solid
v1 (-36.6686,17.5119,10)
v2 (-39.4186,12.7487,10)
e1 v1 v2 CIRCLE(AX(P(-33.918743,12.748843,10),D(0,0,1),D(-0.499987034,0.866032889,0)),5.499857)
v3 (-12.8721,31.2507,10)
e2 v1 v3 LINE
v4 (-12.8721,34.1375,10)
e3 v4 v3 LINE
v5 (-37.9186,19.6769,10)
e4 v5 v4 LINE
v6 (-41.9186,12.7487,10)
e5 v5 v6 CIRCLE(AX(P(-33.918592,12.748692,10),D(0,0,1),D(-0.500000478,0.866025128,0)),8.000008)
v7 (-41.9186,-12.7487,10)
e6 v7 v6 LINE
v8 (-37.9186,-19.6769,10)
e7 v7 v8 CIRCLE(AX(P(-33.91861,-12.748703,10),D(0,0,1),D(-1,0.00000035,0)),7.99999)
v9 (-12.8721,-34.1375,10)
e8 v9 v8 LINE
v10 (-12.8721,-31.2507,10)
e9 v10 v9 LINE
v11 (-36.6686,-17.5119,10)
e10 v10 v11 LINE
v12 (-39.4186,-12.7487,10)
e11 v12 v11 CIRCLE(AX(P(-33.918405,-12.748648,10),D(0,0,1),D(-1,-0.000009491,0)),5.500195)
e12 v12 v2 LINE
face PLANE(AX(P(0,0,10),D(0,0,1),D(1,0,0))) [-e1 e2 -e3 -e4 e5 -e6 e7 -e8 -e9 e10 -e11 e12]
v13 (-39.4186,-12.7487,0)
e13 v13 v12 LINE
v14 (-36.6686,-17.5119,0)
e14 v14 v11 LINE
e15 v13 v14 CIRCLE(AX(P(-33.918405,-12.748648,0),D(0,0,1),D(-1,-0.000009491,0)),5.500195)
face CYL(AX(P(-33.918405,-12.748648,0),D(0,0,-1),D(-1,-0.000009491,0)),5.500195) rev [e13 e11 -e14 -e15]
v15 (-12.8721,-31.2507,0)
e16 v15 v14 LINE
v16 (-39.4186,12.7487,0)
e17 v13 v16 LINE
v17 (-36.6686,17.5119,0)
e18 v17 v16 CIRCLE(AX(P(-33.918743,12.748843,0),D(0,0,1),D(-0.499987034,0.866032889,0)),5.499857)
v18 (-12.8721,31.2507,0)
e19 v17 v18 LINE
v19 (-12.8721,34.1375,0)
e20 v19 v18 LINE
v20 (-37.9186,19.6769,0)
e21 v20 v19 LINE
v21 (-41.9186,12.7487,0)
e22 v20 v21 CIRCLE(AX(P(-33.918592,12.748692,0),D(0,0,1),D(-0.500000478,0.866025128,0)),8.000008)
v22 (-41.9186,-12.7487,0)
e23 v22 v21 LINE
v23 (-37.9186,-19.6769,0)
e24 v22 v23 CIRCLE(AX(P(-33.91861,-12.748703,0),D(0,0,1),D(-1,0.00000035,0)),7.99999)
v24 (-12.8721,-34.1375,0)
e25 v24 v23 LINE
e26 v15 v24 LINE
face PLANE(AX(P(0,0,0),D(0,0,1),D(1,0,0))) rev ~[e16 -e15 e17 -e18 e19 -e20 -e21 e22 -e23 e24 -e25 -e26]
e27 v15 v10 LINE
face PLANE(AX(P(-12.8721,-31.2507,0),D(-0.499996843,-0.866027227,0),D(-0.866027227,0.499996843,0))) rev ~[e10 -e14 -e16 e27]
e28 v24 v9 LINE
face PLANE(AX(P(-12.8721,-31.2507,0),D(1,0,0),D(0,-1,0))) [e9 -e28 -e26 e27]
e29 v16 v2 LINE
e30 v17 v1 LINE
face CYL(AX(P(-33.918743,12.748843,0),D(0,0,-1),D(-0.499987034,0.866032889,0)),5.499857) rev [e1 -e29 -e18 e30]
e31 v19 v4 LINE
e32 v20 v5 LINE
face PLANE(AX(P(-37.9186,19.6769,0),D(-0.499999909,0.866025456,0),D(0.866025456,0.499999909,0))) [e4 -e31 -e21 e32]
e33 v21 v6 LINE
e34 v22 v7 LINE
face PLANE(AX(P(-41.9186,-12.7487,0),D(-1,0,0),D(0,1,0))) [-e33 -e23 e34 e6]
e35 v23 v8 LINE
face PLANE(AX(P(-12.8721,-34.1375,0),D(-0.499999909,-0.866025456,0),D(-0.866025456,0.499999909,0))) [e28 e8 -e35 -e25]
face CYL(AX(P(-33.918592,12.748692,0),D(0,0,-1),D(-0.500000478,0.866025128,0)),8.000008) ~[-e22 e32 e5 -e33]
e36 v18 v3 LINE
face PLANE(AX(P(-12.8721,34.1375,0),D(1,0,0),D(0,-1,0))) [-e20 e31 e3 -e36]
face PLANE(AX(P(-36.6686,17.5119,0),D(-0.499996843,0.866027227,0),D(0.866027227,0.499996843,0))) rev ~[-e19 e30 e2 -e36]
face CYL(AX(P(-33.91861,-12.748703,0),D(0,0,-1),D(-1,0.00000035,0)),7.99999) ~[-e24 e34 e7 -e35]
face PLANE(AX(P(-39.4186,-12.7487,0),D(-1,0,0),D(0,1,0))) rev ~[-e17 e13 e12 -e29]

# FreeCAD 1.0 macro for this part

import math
import FreeCAD as App
import Part
import Sketcher

V = App.Vector
Q = App.Units.Quantity

doc = App.newDocument("Part")
body = doc.addObject("PartDesign::Body", "Body")

sketch1 = body.newObject("Sketcher::SketchObject", "Sketch")
sketch1.AttachmentSupport = (doc.getObject("XY_Plane"), [""])
sketch1.MapMode = "FlatFace"
sketch1.addGeometry([
    Part.LineSegment(V(-12.8721, -34.1375, 0), V(-12.8721, -31.2507, 0)),
    Part.LineSegment(V(-12.8721, -31.2507, 0), V(-36.6686, -17.5119, 0)),
    Part.ArcOfCircle(Part.Circle(V(-33.9186, -12.7487, 0), V(0, 0, 1), 5.5), math.radians(180), math.radians(240.000314)),
    Part.LineSegment(V(-39.4186, -12.7487, 0), V(-39.4186, 12.7487, 0)),
    Part.ArcOfCircle(Part.Circle(V(-33.9186, 12.7487, 0), V(0, 0, 1), 5.500052), math.radians(119.999686), math.radians(180)),
    Part.LineSegment(V(-36.6686, 17.5119, 0), V(-12.8721, 31.2507, 0)),
    Part.LineSegment(V(-12.8721, 31.2507, 0), V(-12.8721, 34.1375, 0)),
    Part.LineSegment(V(-12.8721, 34.1375, 0), V(-37.9186, 19.6769, 0)),
    Part.ArcOfCircle(Part.Circle(V(-33.9186, 12.7487, 0), V(0, 0, 1), 7.999997), math.radians(120.000012), math.radians(180)),
    Part.LineSegment(V(-41.9186, 12.7487, 0), V(-41.9186, -12.7487, 0)),
    Part.ArcOfCircle(Part.Circle(V(-33.9186, -12.7487, 0), V(0, 0, 1), 8), math.radians(180), math.radians(239.999988)),
    Part.LineSegment(V(-37.9186, -19.6769, 0), V(-12.8721, -34.1375, 0)),
], False)
sketch1.addConstraint([
    Sketcher.Constraint("Coincident", 0, 2, 1, 1),
    Sketcher.Constraint("Tangent", 1, 2, 2, 2),
    Sketcher.Constraint("Tangent", 2, 1, 3, 1),
    Sketcher.Constraint("Tangent", 3, 2, 4, 2),
    Sketcher.Constraint("Tangent", 4, 1, 5, 1),
    Sketcher.Constraint("Coincident", 5, 2, 6, 1),
    Sketcher.Constraint("Coincident", 6, 2, 7, 1),
    Sketcher.Constraint("Tangent", 7, 2, 8, 1),
    Sketcher.Constraint("Tangent", 8, 2, 9, 1),
    Sketcher.Constraint("Tangent", 9, 2, 10, 1),
    Sketcher.Constraint("Tangent", 10, 2, 11, 1),
    Sketcher.Constraint("Coincident", 11, 2, 0, 1),
    Sketcher.Constraint("Vertical", 0),
    Sketcher.Constraint("Vertical", 3),
    Sketcher.Constraint("Vertical", 6),
    Sketcher.Constraint("Vertical", 9),
    Sketcher.Constraint("Coincident", 8, 3, 4, 3),
    Sketcher.Constraint("Coincident", 10, 3, 2, 3),
    Sketcher.Constraint("Equal", 2, 4),
    Sketcher.Constraint("Symmetric", 1, 2, 4, 1, -1),
    Sketcher.Constraint("Symmetric", 6, 2, 11, 2, -1),
    Sketcher.Constraint("Parallel", 5, 7),
    Sketcher.Constraint("Radius", 8, Q("8 mm")),
    Sketcher.Constraint("Radius", 2, Q("5.5 mm")),
    Sketcher.Constraint("Angle", 1, Q("150.0002 deg")),
    Sketcher.Constraint("DistanceY", 3, 1, 3, 2, Q("25.4974 mm")),
    Sketcher.Constraint("DistanceX", 0, 2, -1, 1, Q("12.872 mm")),
    Sketcher.Constraint("DistanceY", 0, 2, 2, 3, Q("18.502 mm")),
])
pad1 = body.newObject("PartDesign::Pad", "Pad")
pad1.Profile = sketch1
pad1.Length = 10

doc.recompute()
